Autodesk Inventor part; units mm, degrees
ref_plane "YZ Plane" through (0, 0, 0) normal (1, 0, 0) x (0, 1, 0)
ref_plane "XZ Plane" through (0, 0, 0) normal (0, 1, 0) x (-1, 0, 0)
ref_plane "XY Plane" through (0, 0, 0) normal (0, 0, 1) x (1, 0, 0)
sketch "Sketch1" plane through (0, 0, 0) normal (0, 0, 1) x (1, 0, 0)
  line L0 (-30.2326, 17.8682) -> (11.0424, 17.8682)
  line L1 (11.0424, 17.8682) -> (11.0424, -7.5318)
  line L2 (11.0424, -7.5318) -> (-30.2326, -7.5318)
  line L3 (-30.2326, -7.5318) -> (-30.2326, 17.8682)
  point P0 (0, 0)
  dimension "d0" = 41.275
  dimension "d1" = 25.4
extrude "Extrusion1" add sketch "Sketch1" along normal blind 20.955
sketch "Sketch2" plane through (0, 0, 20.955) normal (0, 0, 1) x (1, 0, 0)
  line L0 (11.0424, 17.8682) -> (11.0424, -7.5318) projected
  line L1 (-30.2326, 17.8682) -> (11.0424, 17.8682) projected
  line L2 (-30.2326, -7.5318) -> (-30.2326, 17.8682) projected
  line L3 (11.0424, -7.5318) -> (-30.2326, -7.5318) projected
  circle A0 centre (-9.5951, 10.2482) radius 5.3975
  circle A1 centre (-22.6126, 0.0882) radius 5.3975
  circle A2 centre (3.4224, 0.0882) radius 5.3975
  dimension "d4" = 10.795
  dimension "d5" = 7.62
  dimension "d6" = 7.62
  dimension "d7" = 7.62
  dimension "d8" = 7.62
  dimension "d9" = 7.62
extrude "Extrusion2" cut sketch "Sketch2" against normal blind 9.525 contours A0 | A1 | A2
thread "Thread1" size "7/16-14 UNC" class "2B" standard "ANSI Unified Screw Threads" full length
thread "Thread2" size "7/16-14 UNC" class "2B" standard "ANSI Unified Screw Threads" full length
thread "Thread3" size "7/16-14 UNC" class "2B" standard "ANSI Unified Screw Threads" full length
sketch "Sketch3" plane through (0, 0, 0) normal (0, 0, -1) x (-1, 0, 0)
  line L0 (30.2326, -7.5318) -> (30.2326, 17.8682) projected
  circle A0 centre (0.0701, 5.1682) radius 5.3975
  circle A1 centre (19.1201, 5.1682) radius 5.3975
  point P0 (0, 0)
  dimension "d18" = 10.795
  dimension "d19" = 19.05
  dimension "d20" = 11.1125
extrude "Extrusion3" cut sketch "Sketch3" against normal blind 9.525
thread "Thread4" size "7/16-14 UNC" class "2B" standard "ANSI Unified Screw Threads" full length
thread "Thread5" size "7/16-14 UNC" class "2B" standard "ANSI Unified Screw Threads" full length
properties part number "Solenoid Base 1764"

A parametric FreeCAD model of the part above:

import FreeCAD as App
import Part
import Sketcher

V = App.Vector
Q = App.Units.Quantity


def add_polygon(sketch, points):
    """Adds a closed chain of lines whose ends are joined by coincident constraints."""
    first, n = sketch.GeometryCount, len(points)
    for a, b in zip(points, points[1:] + points[:1]):
        sketch.addGeometry(Part.LineSegment(App.Vector(*a, 0), App.Vector(*b, 0)), False)
    for i in range(n):
        sketch.addConstraint(Sketcher.Constraint("Coincident", first + i, 2, first + (i + 1) % n, 1))

doc = App.newDocument("Part")
body = doc.addObject("PartDesign::Body", "Body")

sketch1 = body.newObject("Sketcher::SketchObject", "Sketch")
sketch1.AttachmentSupport = (doc.getObject("XY_Plane"), [""])
sketch1.MapMode = "FlatFace"
add_polygon(sketch1, [(11, 18), (-30, 18), (-30, -8), (11, -8)])
sketch1.addConstraint([
    Sketcher.Constraint("Horizontal", 0),
    Sketcher.Constraint("Vertical", 1),
    Sketcher.Constraint("Horizontal", 2),
    Sketcher.Constraint("Vertical", 3),
    Sketcher.Constraint("DistanceY", 1, 2, 1, 1, Q("1 in")),
    Sketcher.Constraint("DistanceX", 0, 2, 0, 1, Q("1.625 in")),
    Sketcher.Constraint("DistanceX", 0, 2, -1, 1, Q("30.2326 mm")),
    Sketcher.Constraint("DistanceY", -1, 1, 0, 2, Q("17.8682 mm")),
])
pad1 = body.newObject("PartDesign::Pad", "Pad")
pad1.Profile = sketch1
pad1.Length = Q("0.825 in")

sketch2 = body.newObject("Sketcher::SketchObject", "Sketch001")
sketch2.AttachmentSupport = (doc.getObject("XY_Plane"), [""])
sketch2.MapMode = "FlatFace"
sketch2.AttachmentOffset = App.Placement(V(0, 0, 0.825 * 25.4), App.Rotation())
sketch2.addGeometry([
    Part.Circle(V(-10, 10, 0), V(0, 0, 1), 5),
    Part.Circle(V(-23, 0, 0), V(0, 0, 1), 5),
    Part.Circle(V(3, 0, 0), V(0, 0, 1), 5),
], False)
sketch2.addConstraint([
    Sketcher.Constraint("Equal", 0, 1),
    Sketcher.Constraint("Equal", 1, 2),
    Sketcher.Constraint("Horizontal", 1, 3, 2, 3),
    Sketcher.Constraint("Diameter", 0, Q("0.425 in")),
    Sketcher.Constraint("DistanceY", 1, 3, 0, 3, Q("0.4 in")),
    Sketcher.Constraint("DistanceX", 1, 3, 2, 3, Q("1.025 in")),
    Sketcher.Constraint("DistanceX", 1, 3, 0, 3, Q("0.5125 in")),
    Sketcher.Constraint("DistanceX", 0, 3, -1, 1, Q("9.595 mm")),
    Sketcher.Constraint("DistanceY", -1, 1, 0, 3, Q("10.2482 mm")),
])
pocket1 = body.newObject("PartDesign::Pocket", "Pocket")
pocket1.Profile = sketch2
pocket1.Length = Q("0.375 in")

sketch3 = body.newObject("Sketcher::SketchObject", "Sketch002")
sketch3.AttachmentSupport = (doc.getObject("XY_Plane"), [""])
sketch3.MapMode = "FlatFace"
sketch3.addGeometry([
    Part.Circle(V(0, 5, 0), V(0, 0, 1), 5),
    Part.Circle(V(-19, 5, 0), V(0, 0, 1), 5),
], False)
sketch3.addConstraint([
    Sketcher.Constraint("Equal", 0, 1),
    Sketcher.Constraint("Horizontal", 0, 3, 1, 3),
    Sketcher.Constraint("Diameter", 0, Q("0.425 in")),
    Sketcher.Constraint("DistanceX", 1, 3, 0, 3, Q("0.75 in")),
    Sketcher.Constraint("DistanceX", 0, 3, -1, 1, Q("0.07 mm")),
    Sketcher.Constraint("DistanceY", -1, 1, 0, 3, Q("5.1682 mm")),
])
pocket2 = body.newObject("PartDesign::Pocket", "Pocket001")
pocket2.Profile = sketch3
pocket2.Length = Q("0.375 in")
pocket2.Reversed = True

doc.recompute()
